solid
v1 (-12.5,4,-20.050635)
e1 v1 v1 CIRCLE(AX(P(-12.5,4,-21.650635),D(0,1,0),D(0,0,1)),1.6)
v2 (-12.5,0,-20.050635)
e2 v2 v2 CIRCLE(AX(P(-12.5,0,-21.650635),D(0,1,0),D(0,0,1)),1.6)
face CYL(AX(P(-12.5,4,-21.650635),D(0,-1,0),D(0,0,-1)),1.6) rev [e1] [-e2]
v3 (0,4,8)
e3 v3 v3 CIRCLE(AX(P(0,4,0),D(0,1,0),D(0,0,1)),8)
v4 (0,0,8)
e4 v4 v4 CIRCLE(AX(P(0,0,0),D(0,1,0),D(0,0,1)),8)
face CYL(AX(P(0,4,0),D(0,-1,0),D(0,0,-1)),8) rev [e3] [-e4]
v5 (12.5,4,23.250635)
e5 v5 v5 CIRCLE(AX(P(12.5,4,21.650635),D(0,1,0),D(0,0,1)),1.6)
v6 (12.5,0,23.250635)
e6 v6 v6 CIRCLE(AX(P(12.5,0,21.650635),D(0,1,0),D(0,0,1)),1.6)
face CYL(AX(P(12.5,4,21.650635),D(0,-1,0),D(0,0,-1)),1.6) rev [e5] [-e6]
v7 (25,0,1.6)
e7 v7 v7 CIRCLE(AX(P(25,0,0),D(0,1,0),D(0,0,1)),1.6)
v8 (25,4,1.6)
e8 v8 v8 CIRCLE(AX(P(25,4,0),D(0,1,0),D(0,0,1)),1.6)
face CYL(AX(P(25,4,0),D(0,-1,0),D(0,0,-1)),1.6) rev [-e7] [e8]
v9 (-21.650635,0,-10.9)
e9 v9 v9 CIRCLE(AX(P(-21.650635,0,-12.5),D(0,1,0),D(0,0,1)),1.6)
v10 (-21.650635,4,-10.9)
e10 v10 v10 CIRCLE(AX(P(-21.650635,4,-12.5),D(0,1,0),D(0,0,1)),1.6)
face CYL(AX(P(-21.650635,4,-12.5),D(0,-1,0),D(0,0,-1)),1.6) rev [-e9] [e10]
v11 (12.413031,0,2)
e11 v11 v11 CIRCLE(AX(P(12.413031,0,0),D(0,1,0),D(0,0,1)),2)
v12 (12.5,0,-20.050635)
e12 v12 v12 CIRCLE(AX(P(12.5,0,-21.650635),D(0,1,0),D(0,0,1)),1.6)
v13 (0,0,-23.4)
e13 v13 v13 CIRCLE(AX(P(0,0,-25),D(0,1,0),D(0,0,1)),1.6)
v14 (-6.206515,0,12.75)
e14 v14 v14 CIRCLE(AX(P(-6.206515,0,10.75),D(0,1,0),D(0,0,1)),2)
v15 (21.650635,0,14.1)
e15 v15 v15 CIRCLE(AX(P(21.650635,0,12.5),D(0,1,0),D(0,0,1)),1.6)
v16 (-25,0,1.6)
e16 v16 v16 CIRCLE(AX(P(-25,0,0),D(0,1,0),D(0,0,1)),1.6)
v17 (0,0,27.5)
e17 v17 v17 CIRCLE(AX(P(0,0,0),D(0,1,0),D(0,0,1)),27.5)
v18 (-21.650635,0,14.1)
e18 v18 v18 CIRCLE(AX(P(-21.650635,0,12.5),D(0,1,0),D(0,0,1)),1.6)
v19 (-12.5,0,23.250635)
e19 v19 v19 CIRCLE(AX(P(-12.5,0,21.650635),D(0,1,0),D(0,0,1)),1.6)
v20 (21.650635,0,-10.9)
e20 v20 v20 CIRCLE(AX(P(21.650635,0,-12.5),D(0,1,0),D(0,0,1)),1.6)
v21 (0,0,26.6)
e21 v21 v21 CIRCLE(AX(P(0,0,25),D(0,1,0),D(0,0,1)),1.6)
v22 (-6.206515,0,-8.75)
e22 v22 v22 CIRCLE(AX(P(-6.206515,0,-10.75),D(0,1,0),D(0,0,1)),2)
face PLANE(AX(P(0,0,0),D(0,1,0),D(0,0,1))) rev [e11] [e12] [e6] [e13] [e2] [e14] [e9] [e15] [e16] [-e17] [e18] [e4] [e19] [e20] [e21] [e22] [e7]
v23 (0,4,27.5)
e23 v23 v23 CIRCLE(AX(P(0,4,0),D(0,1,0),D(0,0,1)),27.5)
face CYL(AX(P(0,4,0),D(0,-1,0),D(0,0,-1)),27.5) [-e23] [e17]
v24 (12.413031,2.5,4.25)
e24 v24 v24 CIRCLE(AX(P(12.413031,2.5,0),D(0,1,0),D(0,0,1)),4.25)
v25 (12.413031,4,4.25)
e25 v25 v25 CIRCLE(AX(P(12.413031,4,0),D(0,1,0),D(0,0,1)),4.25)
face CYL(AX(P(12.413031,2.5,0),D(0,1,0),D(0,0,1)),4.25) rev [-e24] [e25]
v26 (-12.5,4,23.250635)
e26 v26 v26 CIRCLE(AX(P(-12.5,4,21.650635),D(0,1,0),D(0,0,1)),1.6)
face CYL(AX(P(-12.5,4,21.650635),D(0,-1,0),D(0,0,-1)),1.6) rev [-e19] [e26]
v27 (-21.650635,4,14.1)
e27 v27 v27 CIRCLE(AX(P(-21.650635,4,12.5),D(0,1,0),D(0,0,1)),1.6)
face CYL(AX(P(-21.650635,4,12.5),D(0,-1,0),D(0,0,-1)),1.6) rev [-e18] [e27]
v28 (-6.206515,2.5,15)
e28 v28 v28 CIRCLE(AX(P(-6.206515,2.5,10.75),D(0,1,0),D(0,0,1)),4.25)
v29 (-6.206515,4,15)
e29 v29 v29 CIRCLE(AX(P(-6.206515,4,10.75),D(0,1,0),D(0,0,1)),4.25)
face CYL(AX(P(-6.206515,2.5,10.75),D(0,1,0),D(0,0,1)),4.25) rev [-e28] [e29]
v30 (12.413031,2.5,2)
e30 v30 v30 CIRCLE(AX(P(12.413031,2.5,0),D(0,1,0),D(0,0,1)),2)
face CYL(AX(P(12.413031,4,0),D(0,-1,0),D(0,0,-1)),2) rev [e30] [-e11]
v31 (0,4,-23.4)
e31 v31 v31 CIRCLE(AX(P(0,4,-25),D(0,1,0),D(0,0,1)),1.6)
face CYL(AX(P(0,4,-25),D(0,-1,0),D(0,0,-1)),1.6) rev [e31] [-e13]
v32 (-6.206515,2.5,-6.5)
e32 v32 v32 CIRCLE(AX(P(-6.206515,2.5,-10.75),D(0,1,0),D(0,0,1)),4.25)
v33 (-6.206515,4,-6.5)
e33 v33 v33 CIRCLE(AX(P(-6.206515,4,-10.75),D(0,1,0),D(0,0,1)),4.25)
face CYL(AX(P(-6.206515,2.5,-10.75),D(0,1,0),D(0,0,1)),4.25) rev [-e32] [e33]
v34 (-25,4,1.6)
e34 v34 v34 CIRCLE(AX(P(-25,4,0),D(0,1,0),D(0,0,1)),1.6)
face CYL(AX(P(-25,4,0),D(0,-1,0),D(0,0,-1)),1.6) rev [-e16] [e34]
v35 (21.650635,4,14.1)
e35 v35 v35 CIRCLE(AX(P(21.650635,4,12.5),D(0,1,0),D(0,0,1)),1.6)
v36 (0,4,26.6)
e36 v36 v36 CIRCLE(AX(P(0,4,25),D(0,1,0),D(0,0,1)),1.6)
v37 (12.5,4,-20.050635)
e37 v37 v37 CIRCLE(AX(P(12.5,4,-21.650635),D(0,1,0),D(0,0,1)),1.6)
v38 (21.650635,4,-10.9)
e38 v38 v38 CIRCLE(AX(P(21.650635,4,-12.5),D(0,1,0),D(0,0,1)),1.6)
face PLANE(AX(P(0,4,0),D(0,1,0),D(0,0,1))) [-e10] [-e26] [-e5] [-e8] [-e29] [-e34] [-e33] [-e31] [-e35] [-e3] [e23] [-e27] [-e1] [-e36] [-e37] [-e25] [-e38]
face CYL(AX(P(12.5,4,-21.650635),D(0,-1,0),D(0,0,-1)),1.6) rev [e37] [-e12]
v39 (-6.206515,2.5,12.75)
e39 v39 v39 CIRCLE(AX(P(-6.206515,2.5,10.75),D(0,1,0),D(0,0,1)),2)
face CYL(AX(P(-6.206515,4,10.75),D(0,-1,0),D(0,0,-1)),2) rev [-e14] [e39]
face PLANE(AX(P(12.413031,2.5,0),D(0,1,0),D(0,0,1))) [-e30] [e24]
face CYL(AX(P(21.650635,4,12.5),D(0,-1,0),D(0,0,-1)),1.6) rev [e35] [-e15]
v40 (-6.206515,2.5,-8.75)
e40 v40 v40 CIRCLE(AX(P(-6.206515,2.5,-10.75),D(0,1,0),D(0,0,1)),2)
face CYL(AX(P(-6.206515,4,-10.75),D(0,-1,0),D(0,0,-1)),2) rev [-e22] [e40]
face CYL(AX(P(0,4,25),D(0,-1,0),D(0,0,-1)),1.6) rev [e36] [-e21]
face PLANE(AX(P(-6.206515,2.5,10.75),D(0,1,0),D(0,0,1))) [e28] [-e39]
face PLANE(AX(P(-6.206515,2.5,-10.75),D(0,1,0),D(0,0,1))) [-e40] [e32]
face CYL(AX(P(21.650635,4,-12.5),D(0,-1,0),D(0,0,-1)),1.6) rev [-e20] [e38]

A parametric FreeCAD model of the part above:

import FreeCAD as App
import Part
import Sketcher
from FreeCAD import Vector

doc = App.newDocument("Part")
body = doc.addObject("PartDesign::Body", "Body")

# Sketch on XZ plane
sketch1 = body.newObject("Sketcher::SketchObject", "Sketch")
sketch1.AttachmentSupport = (doc.getObject("XZ_Plane"), [""])
sketch1.MapMode = "FlatFace"
sketch1.addGeometry(Part.Circle(Vector(0, 0, 0), Vector(0, 0, 1), 27.5), False)
sketch1.addGeometry(Part.Circle(Vector(-12.5, 21.7, 0), Vector(0, 0, 1), 1.6), False)
sketch1.addGeometry(Part.Circle(Vector(-21.7, 12.5, 0), Vector(0, 0, 1), 1.6), False)
sketch1.addGeometry(Part.Circle(Vector(-6.2, 10.8, 0), Vector(0, 0, 1), 2), False)
sketch1.addGeometry(Part.Circle(Vector(0, 25, 0), Vector(0, 0, 1), 1.6), False)
sketch1.addGeometry(Part.Circle(Vector(12.5, 21.7, 0), Vector(0, 0, 1), 1.6), False)
sketch1.addGeometry(Part.Circle(Vector(21.7, 12.5, 0), Vector(0, 0, 1), 1.6), False)
sketch1.addGeometry(Part.Circle(Vector(-25, 0, 0), Vector(0, 0, 1), 1.6), False)
sketch1.addGeometry(Part.Circle(Vector(-21.7, -12.5, 0), Vector(0, 0, 1), 1.6), False)
sketch1.addGeometry(Part.Circle(Vector(-6.2, -10.8, 0), Vector(0, 0, 1), 2), False)
sketch1.addGeometry(Part.Circle(Vector(-12.5, -21.7, 0), Vector(0, 0, 1), 1.6), False)
sketch1.addGeometry(Part.Circle(Vector(0, 0, 0), Vector(0, 0, 1), 8), False)
sketch1.addGeometry(Part.Circle(Vector(12.4, 0, 0), Vector(0, 0, 1), 2), False)
sketch1.addGeometry(Part.Circle(Vector(25, 0, 0), Vector(0, 0, 1), 1.6), False)
sketch1.addGeometry(Part.Circle(Vector(21.7, -12.5, 0), Vector(0, 0, 1), 1.6), False)
sketch1.addGeometry(Part.Circle(Vector(0, -25, 0), Vector(0, 0, 1), 1.6), False)
sketch1.addGeometry(Part.Circle(Vector(12.5, -21.7, 0), Vector(0, 0, 1), 1.6), False)
sketch1.addConstraint(Sketcher.Constraint("Coincident", 0, 3, -1, 1))
sketch1.addConstraint(Sketcher.Constraint("Coincident", 11, 3, -1, 1))
sketch1.addConstraint(Sketcher.Constraint("Equal", 1, 2))
sketch1.addConstraint(Sketcher.Constraint("Equal", 2, 4))
sketch1.addConstraint(Sketcher.Constraint("Equal", 4, 5))
sketch1.addConstraint(Sketcher.Constraint("Equal", 5, 6))
sketch1.addConstraint(Sketcher.Constraint("Equal", 6, 7))
sketch1.addConstraint(Sketcher.Constraint("Equal", 7, 8))
sketch1.addConstraint(Sketcher.Constraint("Equal", 3, 9))
sketch1.addConstraint(Sketcher.Constraint("Equal", 8, 10))
sketch1.addConstraint(Sketcher.Constraint("Equal", 9, 12))
sketch1.addConstraint(Sketcher.Constraint("Equal", 10, 13))
sketch1.addConstraint(Sketcher.Constraint("Equal", 13, 14))
sketch1.addConstraint(Sketcher.Constraint("Equal", 14, 15))
sketch1.addConstraint(Sketcher.Constraint("Equal", 15, 16))
sketch1.addConstraint(Sketcher.Constraint("Symmetric", 6, 3, 8, 3, -1, 1))
sketch1.addConstraint(Sketcher.Constraint("Symmetric", 5, 3, 10, 3, -1, 1))
sketch1.addConstraint(Sketcher.Constraint("Symmetric", 7, 3, 13, 3, -1, 1))
sketch1.addConstraint(Sketcher.Constraint("Symmetric", 2, 3, 14, 3, -1, 1))
sketch1.addConstraint(Sketcher.Constraint("Symmetric", 4, 3, 15, 3, -1, 1))
sketch1.addConstraint(Sketcher.Constraint("Symmetric", 1, 3, 16, 3, -1, 1))
sketch1.addConstraint(Sketcher.Constraint("Symmetric", 1, 3, 5, 3, -2))
sketch1.addConstraint(Sketcher.Constraint("Symmetric", 2, 3, 6, 3, -2))
sketch1.addConstraint(Sketcher.Constraint("Symmetric", 3, 3, 9, 3, -1))
sketch1.addConstraint(Sketcher.Constraint("PointOnObject", 4, 3, -2))
sketch1.addConstraint(Sketcher.Constraint("PointOnObject", 7, 3, -1))
sketch1.addConstraint(Sketcher.Constraint("PointOnObject", 12, 3, -1))
sketch1.addConstraint(Sketcher.Constraint("Diameter", 0, 55.0))
sketch1.addConstraint(Sketcher.Constraint("Diameter", 3, 4.0))
sketch1.addConstraint(Sketcher.Constraint("Diameter", 11, 16.0))
sketch1.addConstraint(Sketcher.Constraint("Diameter", 1, 3.2))
sketch1.addConstraint(Sketcher.Constraint("DistanceY", -1, 1, 4, 3, 25.0))
sketch1.addConstraint(Sketcher.Constraint("DistanceX", 7, 3, -1, 1, 25.0))
sketch1.addConstraint(Sketcher.Constraint("DistanceX", 1, 3, 5, 3, 25.0))
sketch1.addConstraint(Sketcher.Constraint("DistanceY", 8, 3, 2, 3, 25.0))
sketch1.addConstraint(Sketcher.Constraint("DistanceY", 9, 3, 3, 3, 21.5))
sketch1.addConstraint(Sketcher.Constraint("DistanceX", -1, 1, 12, 3, 12.413031))
sketch1.addConstraint(Sketcher.Constraint("DistanceX", 2, 3, 3, 3, 15.44412))
sketch1.addConstraint(Sketcher.Constraint("DistanceX", 3, 3, 6, 3, 27.85715))
sketch1.addConstraint(Sketcher.Constraint("DistanceY", -1, 1, 1, 3, 21.650635))
pad1 = body.newObject("PartDesign::Pad", "Pad")
pad1.Profile = sketch1
pad1.Length = 4
pad1.Reversed = True

# Sketch on XZ plane
sketch2 = body.newObject("Sketcher::SketchObject", "Sketch001")
sketch2.AttachmentSupport = (doc.getObject("XZ_Plane"), [""])
sketch2.MapMode = "FlatFace"
sketch2.AttachmentOffset = App.Placement(Vector(0, 0, -4), App.Rotation())
sketch2.addGeometry(Part.Circle(Vector(-6.2, -10.8, 0), Vector(0, 0, 1), 4.2), False)
sketch2.addGeometry(Part.Circle(Vector(12.4, 0, 0), Vector(0, 0, 1), 4.2), False)
sketch2.addGeometry(Part.Circle(Vector(-6.2, 10.8, 0), Vector(0, 0, 1), 4.2), False)
sketch2.addConstraint(Sketcher.Constraint("Equal", 0, 1))
sketch2.addConstraint(Sketcher.Constraint("Equal", 1, 2))
sketch2.addConstraint(Sketcher.Constraint("Symmetric", 0, 3, 2, 3, -1))
sketch2.addConstraint(Sketcher.Constraint("PointOnObject", 1, 3, -1))
sketch2.addConstraint(Sketcher.Constraint("Diameter", 0, 8.5))
sketch2.addConstraint(Sketcher.Constraint("DistanceY", 0, 3, 2, 3, 21.5))
sketch2.addConstraint(Sketcher.Constraint("DistanceX", -1, 1, 1, 3, 12.413031))
sketch2.addConstraint(Sketcher.Constraint("DistanceX", 0, 3, -1, 1, 6.206515))
pocket1 = body.newObject("PartDesign::Pocket", "Pocket")
pocket1.Profile = sketch2
pocket1.Length = 1.5
pocket1.Reversed = True

doc.recompute()
